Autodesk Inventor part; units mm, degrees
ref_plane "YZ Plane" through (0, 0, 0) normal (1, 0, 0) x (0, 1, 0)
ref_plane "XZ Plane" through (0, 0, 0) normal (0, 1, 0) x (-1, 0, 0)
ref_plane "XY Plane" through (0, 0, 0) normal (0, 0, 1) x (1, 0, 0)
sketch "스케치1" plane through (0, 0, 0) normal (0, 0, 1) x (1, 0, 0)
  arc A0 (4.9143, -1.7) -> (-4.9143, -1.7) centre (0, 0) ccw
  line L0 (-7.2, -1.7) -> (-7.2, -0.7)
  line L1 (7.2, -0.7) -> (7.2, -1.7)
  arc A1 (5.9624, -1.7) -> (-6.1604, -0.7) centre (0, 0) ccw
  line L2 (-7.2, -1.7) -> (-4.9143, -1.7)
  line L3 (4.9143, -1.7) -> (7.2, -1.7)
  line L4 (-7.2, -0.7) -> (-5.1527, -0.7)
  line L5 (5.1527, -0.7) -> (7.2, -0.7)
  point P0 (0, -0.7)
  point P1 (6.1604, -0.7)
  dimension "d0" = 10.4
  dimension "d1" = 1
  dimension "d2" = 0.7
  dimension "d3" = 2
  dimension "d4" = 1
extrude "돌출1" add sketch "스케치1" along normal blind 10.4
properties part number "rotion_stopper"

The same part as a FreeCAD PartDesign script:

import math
import FreeCAD as App
import Part
import Sketcher

V = App.Vector
Q = App.Units.Quantity

doc = App.newDocument("Part")
body = doc.addObject("PartDesign::Body", "Body")

sketch1 = body.newObject("Sketcher::SketchObject", "Sketch")
sketch1.AttachmentSupport = (doc.getObject("XY_Plane"), [""])
sketch1.MapMode = "FlatFace"
sketch1.addGeometry([
    Part.LineSegment(V(4.9, -1.7, 0), V(7.2, -1.7, 0)),
    Part.LineSegment(V(7.2, -1.7, 0), V(7.2, -0.7, 0)),
    Part.LineSegment(V(7.2, -0.7, 0), V(6.2, -0.7, 0)),
    Part.ArcOfCircle(Part.Circle(V(0, 0, 0), V(0, 0, 1), 6.2), math.radians(-6), math.radians(186)),
    Part.LineSegment(V(-6.2, -0.7, 0), V(-7.2, -0.7, 0)),
    Part.LineSegment(V(-7.2, -0.7, 0), V(-7.2, -1.7, 0)),
    Part.LineSegment(V(-7.2, -1.7, 0), V(-4.9, -1.7, 0)),
    Part.ArcOfCircle(Part.Circle(V(0, 0, 0), V(0, 0, 1), 5.2), math.radians(-19), math.radians(199)),
], False)
sketch1.addConstraint([
    Sketcher.Constraint("Coincident", 0, 2, 1, 1),
    Sketcher.Constraint("Coincident", 1, 2, 2, 1),
    Sketcher.Constraint("Coincident", 2, 2, 3, 1),
    Sketcher.Constraint("Coincident", 3, 2, 4, 1),
    Sketcher.Constraint("Coincident", 4, 2, 5, 1),
    Sketcher.Constraint("Coincident", 5, 2, 6, 1),
    Sketcher.Constraint("Coincident", 6, 2, 7, 2),
    Sketcher.Constraint("Coincident", 7, 1, 0, 1),
    Sketcher.Constraint("Horizontal", 0),
    Sketcher.Constraint("Vertical", 1),
    Sketcher.Constraint("Horizontal", 2),
    Sketcher.Constraint("Horizontal", 4),
    Sketcher.Constraint("Vertical", 5),
    Sketcher.Constraint("Horizontal", 6),
    Sketcher.Constraint("Coincident", 3, 3, -1, 1),
    Sketcher.Constraint("Coincident", 7, 3, -1, 1),
    Sketcher.Constraint("Symmetric", 1, 2, 4, 2, -2),
    Sketcher.Constraint("Horizontal", 0, 2, 5, 2),
    Sketcher.Constraint("Radius", 7, Q("5.2 mm")),
    Sketcher.Constraint("DistanceY", 1, 1, 1, 2, Q("1 mm")),
    Sketcher.Constraint("DistanceY", 1, 2, -1, 1, Q("0.7 mm")),
    Sketcher.Constraint("Radius", 3, Q("6.2 mm")),
    Sketcher.Constraint("DistanceX", -1, 1, 0, 2, Q("7.2 mm")),
])
pad1 = body.newObject("PartDesign::Pad", "Pad")
pad1.Profile = sketch1
pad1.Length = 10.4

doc.recompute()
